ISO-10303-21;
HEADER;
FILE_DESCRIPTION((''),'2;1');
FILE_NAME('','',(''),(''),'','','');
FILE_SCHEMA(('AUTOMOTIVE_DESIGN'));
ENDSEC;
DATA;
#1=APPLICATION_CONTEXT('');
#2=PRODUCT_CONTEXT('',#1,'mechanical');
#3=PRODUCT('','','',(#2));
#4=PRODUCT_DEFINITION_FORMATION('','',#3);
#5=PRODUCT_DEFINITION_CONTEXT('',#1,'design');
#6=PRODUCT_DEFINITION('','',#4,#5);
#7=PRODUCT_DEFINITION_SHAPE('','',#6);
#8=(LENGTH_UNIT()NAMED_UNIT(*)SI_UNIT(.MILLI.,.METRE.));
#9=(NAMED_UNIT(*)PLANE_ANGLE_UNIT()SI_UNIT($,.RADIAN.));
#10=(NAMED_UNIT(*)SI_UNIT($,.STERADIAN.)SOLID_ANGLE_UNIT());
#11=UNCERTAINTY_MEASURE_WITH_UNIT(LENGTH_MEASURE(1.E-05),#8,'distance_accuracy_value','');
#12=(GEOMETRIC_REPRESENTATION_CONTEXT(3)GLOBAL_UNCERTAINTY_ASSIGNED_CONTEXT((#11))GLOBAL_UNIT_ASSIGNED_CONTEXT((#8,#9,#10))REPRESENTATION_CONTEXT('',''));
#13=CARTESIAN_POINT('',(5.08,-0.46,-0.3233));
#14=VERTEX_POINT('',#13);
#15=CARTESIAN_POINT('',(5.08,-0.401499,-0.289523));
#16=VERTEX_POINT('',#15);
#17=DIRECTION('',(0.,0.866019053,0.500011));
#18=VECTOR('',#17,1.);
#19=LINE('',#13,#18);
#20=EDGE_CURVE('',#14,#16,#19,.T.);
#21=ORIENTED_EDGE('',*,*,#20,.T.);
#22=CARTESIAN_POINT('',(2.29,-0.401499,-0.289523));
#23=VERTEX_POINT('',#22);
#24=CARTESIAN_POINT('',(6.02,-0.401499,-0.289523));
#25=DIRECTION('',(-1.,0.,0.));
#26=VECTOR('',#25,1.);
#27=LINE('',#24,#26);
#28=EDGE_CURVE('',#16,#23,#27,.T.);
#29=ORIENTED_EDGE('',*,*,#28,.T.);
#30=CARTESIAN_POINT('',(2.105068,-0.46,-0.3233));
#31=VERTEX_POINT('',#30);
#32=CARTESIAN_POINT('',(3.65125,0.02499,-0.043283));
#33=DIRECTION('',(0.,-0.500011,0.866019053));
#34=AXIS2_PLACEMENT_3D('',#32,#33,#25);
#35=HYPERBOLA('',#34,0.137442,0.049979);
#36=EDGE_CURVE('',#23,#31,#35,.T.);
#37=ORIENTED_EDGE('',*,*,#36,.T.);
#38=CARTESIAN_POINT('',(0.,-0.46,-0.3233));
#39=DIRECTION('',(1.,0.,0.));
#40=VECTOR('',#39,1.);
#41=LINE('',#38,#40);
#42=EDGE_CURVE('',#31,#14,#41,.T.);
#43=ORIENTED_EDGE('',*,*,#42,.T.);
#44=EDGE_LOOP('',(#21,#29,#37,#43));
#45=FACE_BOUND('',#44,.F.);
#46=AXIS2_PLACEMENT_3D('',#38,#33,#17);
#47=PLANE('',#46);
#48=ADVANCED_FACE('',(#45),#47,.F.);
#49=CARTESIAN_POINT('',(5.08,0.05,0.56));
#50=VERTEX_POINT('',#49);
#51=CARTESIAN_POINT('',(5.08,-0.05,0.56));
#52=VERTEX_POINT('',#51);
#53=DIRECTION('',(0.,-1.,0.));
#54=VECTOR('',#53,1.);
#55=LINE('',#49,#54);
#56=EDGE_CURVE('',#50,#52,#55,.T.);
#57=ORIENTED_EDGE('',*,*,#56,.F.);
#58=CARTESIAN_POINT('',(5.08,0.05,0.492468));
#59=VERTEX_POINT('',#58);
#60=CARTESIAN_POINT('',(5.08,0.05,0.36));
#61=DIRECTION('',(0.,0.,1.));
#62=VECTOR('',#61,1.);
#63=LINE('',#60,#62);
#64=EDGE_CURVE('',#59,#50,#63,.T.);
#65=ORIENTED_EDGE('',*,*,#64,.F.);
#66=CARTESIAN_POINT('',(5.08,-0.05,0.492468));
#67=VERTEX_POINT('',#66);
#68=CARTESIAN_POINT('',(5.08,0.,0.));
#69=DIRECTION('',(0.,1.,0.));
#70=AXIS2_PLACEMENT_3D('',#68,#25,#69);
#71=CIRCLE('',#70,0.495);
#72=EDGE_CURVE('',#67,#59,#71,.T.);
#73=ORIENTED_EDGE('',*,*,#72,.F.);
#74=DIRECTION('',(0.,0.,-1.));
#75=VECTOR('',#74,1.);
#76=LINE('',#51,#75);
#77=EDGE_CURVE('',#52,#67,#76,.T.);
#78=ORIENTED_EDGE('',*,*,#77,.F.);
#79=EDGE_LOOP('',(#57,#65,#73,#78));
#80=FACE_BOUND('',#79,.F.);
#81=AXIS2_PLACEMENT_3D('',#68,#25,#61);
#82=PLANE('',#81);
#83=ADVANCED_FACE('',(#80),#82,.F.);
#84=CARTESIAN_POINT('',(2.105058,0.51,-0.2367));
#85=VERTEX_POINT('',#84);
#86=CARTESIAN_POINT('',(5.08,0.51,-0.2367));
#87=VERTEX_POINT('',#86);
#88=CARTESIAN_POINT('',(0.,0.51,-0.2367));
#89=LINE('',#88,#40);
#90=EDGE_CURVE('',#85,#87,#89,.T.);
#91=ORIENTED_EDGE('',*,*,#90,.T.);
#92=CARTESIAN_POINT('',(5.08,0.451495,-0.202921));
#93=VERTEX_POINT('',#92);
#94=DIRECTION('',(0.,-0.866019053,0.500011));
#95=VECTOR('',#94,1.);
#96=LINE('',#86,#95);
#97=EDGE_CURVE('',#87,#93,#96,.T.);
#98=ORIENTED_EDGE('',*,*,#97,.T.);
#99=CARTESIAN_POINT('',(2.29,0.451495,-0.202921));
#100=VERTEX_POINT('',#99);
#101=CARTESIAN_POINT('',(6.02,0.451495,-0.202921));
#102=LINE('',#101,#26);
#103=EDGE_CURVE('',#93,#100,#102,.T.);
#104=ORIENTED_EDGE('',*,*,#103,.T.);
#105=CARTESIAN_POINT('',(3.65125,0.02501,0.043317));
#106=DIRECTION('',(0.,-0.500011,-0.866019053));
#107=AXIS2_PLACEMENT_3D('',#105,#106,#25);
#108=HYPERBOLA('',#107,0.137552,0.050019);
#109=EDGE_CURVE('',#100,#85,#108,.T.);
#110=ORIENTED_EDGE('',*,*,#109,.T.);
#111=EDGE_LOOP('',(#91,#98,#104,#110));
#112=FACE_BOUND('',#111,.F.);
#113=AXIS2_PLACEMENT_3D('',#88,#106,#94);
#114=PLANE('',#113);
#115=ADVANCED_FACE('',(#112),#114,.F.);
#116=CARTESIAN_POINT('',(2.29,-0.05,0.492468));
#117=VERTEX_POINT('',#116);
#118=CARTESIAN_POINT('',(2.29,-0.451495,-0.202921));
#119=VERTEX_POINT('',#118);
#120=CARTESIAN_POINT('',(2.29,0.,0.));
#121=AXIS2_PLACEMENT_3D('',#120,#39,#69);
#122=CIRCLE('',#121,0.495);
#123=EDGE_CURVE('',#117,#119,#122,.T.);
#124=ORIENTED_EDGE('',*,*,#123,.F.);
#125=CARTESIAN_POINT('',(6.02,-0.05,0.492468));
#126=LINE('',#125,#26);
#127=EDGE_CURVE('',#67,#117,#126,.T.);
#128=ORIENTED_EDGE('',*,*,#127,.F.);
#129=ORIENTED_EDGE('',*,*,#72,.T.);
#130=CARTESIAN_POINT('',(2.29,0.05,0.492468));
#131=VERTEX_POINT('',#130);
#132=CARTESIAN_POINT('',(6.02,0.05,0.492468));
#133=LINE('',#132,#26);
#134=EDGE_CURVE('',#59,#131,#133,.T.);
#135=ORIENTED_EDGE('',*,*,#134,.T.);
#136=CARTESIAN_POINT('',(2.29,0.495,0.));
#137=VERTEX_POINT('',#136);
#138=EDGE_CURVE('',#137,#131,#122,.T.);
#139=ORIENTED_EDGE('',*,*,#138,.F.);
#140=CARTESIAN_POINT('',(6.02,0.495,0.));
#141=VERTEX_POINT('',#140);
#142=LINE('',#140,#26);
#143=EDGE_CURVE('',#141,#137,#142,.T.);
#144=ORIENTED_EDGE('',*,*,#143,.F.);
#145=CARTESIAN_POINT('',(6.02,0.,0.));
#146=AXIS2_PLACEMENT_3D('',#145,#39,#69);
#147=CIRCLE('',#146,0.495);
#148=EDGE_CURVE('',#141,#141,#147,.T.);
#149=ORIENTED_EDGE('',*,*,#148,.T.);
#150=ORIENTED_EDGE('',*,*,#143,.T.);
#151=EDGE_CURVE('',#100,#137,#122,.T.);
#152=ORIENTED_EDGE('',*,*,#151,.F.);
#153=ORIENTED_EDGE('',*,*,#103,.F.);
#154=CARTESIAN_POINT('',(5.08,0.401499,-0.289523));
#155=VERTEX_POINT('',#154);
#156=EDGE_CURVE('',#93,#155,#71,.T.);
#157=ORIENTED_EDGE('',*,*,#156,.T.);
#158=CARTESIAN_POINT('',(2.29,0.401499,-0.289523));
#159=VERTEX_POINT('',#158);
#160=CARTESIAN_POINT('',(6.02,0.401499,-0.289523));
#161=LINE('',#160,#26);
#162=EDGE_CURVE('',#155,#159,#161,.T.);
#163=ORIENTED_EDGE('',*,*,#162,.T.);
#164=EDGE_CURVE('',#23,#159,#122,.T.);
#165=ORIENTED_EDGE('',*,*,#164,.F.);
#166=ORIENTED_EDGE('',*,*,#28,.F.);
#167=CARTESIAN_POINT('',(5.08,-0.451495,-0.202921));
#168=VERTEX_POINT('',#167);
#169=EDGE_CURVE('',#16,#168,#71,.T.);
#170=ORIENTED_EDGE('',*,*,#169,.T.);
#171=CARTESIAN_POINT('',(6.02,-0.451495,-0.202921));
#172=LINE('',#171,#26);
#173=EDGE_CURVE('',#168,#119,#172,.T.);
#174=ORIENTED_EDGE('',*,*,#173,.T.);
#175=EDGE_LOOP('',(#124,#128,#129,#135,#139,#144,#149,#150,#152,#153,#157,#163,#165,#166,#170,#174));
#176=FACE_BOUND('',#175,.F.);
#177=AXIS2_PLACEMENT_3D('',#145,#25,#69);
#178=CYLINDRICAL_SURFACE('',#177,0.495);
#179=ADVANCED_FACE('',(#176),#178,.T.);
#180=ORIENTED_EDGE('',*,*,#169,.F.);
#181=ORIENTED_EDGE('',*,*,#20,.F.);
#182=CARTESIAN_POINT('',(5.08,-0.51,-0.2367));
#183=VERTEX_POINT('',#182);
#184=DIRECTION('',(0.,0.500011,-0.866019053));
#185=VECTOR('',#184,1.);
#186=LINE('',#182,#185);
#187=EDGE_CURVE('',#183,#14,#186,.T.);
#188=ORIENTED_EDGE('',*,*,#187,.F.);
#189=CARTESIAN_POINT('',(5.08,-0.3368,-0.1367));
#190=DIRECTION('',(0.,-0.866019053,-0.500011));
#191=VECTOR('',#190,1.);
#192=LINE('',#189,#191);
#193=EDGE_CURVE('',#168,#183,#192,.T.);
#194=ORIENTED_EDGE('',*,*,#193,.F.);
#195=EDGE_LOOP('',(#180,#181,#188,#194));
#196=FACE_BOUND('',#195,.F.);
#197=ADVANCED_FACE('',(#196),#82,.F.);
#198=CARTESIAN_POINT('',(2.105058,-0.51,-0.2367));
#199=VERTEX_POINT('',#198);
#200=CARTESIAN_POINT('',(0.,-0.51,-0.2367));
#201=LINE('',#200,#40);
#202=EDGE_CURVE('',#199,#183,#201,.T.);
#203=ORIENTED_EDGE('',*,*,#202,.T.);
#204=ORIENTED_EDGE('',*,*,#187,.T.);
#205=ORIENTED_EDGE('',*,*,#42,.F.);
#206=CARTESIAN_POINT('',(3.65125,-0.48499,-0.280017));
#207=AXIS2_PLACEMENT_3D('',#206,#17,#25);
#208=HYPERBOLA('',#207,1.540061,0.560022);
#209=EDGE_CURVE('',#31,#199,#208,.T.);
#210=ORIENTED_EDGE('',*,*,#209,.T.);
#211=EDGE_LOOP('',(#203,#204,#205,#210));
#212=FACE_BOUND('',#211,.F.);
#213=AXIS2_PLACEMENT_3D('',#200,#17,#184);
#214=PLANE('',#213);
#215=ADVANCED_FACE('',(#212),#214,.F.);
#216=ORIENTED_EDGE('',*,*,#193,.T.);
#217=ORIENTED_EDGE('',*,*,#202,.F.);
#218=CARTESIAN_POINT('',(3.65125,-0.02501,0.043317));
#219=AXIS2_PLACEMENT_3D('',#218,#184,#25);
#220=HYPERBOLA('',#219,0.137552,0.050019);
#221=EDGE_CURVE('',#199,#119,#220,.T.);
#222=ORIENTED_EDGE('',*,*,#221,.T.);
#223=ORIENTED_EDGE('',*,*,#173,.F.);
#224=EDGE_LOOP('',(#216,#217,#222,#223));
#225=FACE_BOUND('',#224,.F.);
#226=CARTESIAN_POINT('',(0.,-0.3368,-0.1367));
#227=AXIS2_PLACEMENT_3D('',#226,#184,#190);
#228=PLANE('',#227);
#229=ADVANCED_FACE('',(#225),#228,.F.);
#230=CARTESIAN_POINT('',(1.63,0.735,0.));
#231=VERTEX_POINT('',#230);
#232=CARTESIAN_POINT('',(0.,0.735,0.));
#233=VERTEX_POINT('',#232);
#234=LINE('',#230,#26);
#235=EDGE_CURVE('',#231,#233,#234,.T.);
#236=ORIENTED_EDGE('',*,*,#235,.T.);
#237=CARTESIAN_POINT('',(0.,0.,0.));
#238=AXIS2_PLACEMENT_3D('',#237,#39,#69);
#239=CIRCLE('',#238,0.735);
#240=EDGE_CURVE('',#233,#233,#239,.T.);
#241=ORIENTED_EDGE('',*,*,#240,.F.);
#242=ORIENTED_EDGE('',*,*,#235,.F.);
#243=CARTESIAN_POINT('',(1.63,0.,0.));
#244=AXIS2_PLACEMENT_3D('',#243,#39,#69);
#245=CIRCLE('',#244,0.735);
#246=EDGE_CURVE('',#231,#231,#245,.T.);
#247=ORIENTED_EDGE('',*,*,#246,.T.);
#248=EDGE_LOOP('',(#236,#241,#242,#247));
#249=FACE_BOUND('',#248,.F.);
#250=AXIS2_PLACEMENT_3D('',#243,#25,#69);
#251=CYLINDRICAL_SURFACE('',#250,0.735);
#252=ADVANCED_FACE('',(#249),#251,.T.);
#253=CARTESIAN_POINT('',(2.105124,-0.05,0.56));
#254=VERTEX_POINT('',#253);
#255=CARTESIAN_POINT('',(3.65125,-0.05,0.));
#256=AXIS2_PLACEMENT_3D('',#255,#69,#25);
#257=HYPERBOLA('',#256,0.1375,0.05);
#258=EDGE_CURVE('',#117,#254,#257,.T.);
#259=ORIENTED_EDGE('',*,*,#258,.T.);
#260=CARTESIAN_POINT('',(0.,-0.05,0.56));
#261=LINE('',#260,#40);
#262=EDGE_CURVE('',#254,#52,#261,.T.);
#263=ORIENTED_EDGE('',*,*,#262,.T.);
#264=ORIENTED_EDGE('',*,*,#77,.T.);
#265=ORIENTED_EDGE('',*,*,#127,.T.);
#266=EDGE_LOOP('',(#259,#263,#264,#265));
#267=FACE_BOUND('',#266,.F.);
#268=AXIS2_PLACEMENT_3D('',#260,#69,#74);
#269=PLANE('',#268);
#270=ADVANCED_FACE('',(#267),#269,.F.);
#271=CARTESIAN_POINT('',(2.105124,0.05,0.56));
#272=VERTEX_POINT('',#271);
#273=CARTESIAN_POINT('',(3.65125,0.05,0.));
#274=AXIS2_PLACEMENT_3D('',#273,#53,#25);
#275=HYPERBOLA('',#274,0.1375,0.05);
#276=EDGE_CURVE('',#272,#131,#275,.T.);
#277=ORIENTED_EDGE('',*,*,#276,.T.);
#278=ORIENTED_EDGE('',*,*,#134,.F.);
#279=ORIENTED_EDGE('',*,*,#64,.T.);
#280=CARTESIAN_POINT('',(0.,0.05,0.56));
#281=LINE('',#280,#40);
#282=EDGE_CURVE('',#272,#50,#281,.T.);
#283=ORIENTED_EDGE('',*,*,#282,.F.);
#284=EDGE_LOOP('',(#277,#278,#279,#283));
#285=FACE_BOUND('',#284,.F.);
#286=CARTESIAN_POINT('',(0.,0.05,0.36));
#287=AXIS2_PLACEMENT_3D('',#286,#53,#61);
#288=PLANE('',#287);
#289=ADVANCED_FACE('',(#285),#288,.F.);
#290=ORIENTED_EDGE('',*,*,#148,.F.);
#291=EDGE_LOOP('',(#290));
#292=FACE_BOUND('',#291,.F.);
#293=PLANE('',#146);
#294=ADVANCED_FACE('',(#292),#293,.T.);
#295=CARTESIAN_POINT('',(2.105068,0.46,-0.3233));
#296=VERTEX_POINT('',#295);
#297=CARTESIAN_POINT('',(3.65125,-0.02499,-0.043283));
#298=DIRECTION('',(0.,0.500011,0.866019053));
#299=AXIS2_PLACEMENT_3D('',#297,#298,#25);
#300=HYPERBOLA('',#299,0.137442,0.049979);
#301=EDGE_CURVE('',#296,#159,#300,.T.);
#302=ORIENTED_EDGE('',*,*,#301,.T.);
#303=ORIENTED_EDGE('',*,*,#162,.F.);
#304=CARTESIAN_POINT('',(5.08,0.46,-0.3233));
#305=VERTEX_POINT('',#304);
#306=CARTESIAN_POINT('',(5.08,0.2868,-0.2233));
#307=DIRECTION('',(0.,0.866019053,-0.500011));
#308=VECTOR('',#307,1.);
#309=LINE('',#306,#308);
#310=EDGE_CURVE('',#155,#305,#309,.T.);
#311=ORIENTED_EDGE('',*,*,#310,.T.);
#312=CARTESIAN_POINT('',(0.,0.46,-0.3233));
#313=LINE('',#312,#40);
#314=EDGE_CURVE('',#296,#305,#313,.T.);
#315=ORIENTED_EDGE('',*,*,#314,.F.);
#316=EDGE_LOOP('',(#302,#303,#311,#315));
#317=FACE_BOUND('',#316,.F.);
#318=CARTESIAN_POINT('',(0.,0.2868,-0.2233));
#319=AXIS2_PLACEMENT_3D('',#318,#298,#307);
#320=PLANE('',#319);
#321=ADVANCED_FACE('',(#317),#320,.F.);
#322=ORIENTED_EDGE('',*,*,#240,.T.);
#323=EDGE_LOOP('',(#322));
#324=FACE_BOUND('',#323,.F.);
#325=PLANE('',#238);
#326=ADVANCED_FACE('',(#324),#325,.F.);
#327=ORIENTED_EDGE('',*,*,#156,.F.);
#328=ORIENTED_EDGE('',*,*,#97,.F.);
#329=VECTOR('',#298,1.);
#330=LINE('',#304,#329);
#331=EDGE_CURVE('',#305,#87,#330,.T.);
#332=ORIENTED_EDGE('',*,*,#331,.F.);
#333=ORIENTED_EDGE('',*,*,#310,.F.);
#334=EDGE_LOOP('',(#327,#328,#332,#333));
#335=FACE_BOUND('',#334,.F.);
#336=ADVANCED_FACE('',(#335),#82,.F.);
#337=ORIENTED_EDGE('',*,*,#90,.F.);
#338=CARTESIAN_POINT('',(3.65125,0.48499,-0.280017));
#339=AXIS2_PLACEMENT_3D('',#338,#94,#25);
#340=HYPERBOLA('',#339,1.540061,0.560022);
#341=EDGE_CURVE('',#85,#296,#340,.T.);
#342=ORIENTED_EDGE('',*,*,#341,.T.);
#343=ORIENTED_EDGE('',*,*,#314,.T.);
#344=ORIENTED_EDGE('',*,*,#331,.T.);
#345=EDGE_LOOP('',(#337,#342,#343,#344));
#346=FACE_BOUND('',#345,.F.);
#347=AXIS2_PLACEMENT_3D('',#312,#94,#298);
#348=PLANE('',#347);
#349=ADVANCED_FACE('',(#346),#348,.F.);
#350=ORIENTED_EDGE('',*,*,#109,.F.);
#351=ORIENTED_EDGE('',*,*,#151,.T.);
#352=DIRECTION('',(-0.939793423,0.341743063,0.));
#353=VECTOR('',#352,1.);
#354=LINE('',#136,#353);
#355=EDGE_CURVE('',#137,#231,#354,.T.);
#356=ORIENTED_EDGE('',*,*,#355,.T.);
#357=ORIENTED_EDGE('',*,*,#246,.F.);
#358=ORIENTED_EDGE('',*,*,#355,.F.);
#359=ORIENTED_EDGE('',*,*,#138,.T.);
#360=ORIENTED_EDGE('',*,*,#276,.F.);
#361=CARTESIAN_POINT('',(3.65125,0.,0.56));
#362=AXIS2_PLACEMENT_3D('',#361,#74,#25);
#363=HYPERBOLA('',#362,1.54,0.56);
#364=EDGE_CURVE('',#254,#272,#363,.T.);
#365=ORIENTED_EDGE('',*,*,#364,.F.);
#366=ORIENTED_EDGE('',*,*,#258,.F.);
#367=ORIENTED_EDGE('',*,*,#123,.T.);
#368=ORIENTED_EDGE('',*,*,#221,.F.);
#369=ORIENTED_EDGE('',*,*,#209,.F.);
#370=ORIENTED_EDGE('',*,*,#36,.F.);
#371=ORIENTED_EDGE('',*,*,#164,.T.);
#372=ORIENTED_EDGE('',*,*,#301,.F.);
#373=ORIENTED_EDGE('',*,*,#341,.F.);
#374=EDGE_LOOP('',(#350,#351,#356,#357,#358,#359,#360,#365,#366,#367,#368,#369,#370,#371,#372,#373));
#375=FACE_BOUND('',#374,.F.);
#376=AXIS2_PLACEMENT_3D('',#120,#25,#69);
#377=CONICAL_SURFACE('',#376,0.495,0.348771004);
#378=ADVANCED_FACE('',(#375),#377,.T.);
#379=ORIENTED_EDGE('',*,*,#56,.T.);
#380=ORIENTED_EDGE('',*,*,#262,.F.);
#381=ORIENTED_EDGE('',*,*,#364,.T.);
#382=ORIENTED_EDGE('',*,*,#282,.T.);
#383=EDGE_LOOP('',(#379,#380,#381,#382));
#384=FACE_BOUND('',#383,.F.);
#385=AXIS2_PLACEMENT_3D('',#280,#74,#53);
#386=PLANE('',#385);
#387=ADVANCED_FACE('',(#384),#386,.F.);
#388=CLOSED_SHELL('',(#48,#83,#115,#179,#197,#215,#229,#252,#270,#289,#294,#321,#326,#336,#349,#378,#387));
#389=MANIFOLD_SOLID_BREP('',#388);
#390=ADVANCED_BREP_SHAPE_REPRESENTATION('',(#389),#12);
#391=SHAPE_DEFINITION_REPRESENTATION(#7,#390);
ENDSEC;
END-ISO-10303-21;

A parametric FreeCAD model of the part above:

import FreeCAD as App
import Part
import Sketcher
Q = App.Units.Quantity


def add_polygon(sketch, points):
    """Adds a closed chain of lines whose ends are joined by coincident constraints."""
    first, n = sketch.GeometryCount, len(points)
    for a, b in zip(points, points[1:] + points[:1]):
        sketch.addGeometry(Part.LineSegment(App.Vector(*a, 0), App.Vector(*b, 0)), False)
    for i in range(n):
        sketch.addConstraint(Sketcher.Constraint("Coincident", first + i, 2, first + (i + 1) % n, 1))

doc = App.newDocument("Part")
params = doc.addObject("Spreadsheet::Sheet", "Params")
for row, (alias, value) in enumerate([
    ("sketch1_width", "6.02 mm"),
    ("sketch1_width2", "3.73 mm"),
    ("sketch1_width3", "1.63 mm"),
    ("revolution_angle", "360 deg"),
    ("sketch2_width", "0.1 mm"),
    ("sketch2_height", "0.2 mm"),
    ("sketch2_length", "0.2 mm"),
    ("sketch2_length2", "0.1 mm"),
    ("pad1_length", "5.08 mm"),
], start=1):
    params.set(f"A{row}", alias)
    params.set(f"B{row}", "=" + value)
    params.setAlias(f"B{row}", alias)

body = doc.addObject("PartDesign::Body", "Body")

sketch1 = doc.addObject("Sketcher::SketchObject", "Sketch")
body.addObject(sketch1)
sketch1.AttachmentSupport = (doc.XY_Plane, [""])
sketch1.MapMode = "FlatFace"
add_polygon(sketch1, [(0, 0.735), (0, 0), (6.02, 0), (6.02, 0.495), (2.29, 0.495), (1.63, 0.735)])
sketch1.addConstraint(Sketcher.Constraint("Vertical", 0))
sketch1.addConstraint(Sketcher.Constraint("Horizontal", 1))
sketch1.addConstraint(Sketcher.Constraint("Vertical", 2))
sketch1.addConstraint(Sketcher.Constraint("Horizontal", 3))
sketch1.addConstraint(Sketcher.Constraint("Horizontal", 5))
sketch1.addConstraint(Sketcher.Constraint("Coincident", 0, 2, -1, 1))
sketch1.addConstraint(Sketcher.Constraint("DistanceX", 1, 1, 1, 2, Q("6.02 mm")))
sketch1.addConstraint(Sketcher.Constraint("DistanceX", 3, 2, 3, 1, Q("3.73 mm")))
sketch1.addConstraint(Sketcher.Constraint("DistanceX", 5, 2, 5, 1, Q("1.63 mm")))
sketch1.addConstraint(Sketcher.Constraint("DistanceY", 0, 2, 0, 1, Q("0.735 mm")))
sketch1.addConstraint(Sketcher.Constraint("DistanceY", 2, 1, 2, 2, Q("0.495 mm")))
sketch1.setExpression("Constraints[12]", "Params.sketch1_width")
sketch1.setExpression("Constraints[13]", "Params.sketch1_width2")
sketch1.setExpression("Constraints[14]", "Params.sketch1_width3")
revolution = doc.addObject("PartDesign::Revolution", "Revolution")
body.addObject(revolution)
revolution.Profile = sketch1
revolution.ReferenceAxis = (sketch1, ["H_Axis"])
revolution.setExpression("Angle", "Params.revolution_angle")

sketch2 = doc.addObject("Sketcher::SketchObject", "Sketch001")
body.addObject(sketch2)
sketch2.AttachmentSupport = (doc.YZ_Plane, [""])
sketch2.MapMode = "FlatFace"
add_polygon(sketch2, [(0.05, 0.56), (0.05, 0.36), (-0.05, 0.36), (-0.05, 0.56)])
add_polygon(sketch2, [(0.46, -0.3233), (0.2868, -0.2233), (0.3368, -0.1367), (0.51, -0.2367)])
add_polygon(sketch2, [(-0.51, -0.2367), (-0.3368, -0.1367), (-0.2868, -0.2233), (-0.46, -0.3233)])
sketch2.addConstraint(Sketcher.Constraint("Vertical", 0))
sketch2.addConstraint(Sketcher.Constraint("Horizontal", 1))
sketch2.addConstraint(Sketcher.Constraint("Vertical", 2))
sketch2.addConstraint(Sketcher.Constraint("Horizontal", 3))
sketch2.addConstraint(Sketcher.Constraint("Symmetric", 5, 2, 8, 2, -2))
sketch2.addConstraint(Sketcher.Constraint("Symmetric", 4, 2, 9, 2, -2))
sketch2.addConstraint(Sketcher.Constraint("Symmetric", 7, 2, 10, 2, -2))
sketch2.addConstraint(Sketcher.Constraint("Symmetric", 6, 2, 11, 2, -2))
sketch2.addConstraint(Sketcher.Constraint("Perpendicular", 4, 5))
sketch2.addConstraint(Sketcher.Constraint("Perpendicular", 5, 6))
sketch2.addConstraint(Sketcher.Constraint("Perpendicular", 6, 7))
sketch2.addConstraint(Sketcher.Constraint("DistanceX", 1, 2, 1, 1, Q("0.1 mm")))
sketch2.addConstraint(Sketcher.Constraint("DistanceY", 0, 2, 0, 1, Q("0.2 mm")))
sketch2.addConstraint(Sketcher.Constraint("Distance", 4, Q("0.2 mm")))
sketch2.addConstraint(Sketcher.Constraint("Distance", 5, Q("0.1 mm")))
sketch2.addConstraint(Sketcher.Constraint("DistanceY", 6, 2, 5, 2, Q("0.1 mm")))
sketch2.addConstraint(Sketcher.Constraint("DistanceY", -1, 1, 2, 2, Q("0.56 mm")))
sketch2.addConstraint(Sketcher.Constraint("DistanceX", 1, 2, 6, 2, Q("0.56 mm")))
sketch2.addConstraint(Sketcher.Constraint("DistanceX", -1, 1, 0, 2, Q("0.05 mm")))
sketch2.addConstraint(Sketcher.Constraint("DistanceY", 4, 2, -1, 1, Q("0.2233 mm")))
sketch2.setExpression("Constraints[23]", "Params.sketch2_width")
sketch2.setExpression("Constraints[24]", "Params.sketch2_height")
sketch2.setExpression("Constraints[25]", "Params.sketch2_length")
sketch2.setExpression("Constraints[26]", "Params.sketch2_length2")
pad1 = doc.addObject("PartDesign::Pad", "Pad")
body.addObject(pad1)
pad1.Profile = sketch2
pad1.setExpression("Length", "Params.pad1_length")

doc.recompute()
